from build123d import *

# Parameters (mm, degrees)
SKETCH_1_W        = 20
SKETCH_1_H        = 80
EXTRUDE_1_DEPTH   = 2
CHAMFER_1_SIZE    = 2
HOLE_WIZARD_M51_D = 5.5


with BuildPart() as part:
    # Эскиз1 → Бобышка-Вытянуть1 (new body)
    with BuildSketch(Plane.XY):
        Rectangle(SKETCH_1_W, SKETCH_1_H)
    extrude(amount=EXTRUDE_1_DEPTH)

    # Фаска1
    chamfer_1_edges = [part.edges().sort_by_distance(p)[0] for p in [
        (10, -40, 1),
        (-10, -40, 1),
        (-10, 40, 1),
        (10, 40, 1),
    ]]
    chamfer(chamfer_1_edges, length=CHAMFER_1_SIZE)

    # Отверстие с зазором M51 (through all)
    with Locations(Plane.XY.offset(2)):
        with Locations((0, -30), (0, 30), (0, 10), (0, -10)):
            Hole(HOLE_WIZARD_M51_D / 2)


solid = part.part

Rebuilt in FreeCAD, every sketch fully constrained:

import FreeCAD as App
import Part
import Sketcher
from FreeCAD import Vector
Q = App.Units.Quantity


def edges_at(feature, points):
    """Names of the edges that pass closest to the given points."""
    edges = feature.Shape.Edges
    near = lambda p: min(range(len(edges)), key=lambda i: edges[i].distToShape(Part.Vertex(*p))[0])
    return sorted({f"Edge{near(p) + 1}" for p in points})


def add_polygon(sketch, points):
    """Adds a closed chain of lines whose ends are joined by coincident constraints."""
    first, n = sketch.GeometryCount, len(points)
    for a, b in zip(points, points[1:] + points[:1]):
        sketch.addGeometry(Part.LineSegment(App.Vector(*a, 0), App.Vector(*b, 0)), False)
    for i in range(n):
        sketch.addConstraint(Sketcher.Constraint("Coincident", first + i, 2, first + (i + 1) % n, 1))

doc = App.newDocument("Part")
params = doc.addObject("Spreadsheet::Sheet", "Params")
for row, (alias, value) in enumerate([
    ("sketch1_width", "20 mm"),
    ("sketch1_height", "80 mm"),
    ("pad1_length", "2 mm"),
    ("chamfer_size", "2 mm"),
    ("sketch2_diameter", "5.5 mm"),
    ("hole_diameter", "5.5 mm"),
], start=1):
    params.set(f"A{row}", alias)
    params.set(f"B{row}", "=" + value)
    params.setAlias(f"B{row}", alias)

body = doc.addObject("PartDesign::Body", "Body")

# Sketch on XY plane
sketch1 = body.newObject("Sketcher::SketchObject", "Sketch")
sketch1.AttachmentSupport = (doc.getObject("XY_Plane"), [""])
sketch1.MapMode = "FlatFace"
add_polygon(sketch1, [(-10, 40), (-10, -40), (10, -40), (10, 40)])  # lines 0-3
sketch1.addConstraint([
    Sketcher.Constraint("Vertical", 0),
    Sketcher.Constraint("Horizontal", 1),
    Sketcher.Constraint("Vertical", 2),
    Sketcher.Constraint("Horizontal", 3),
    Sketcher.Constraint("Symmetric", 0, 2, 2, 2, -1, 1),
    Sketcher.Constraint("DistanceX", 1, 1, 1, 2, Q("20 mm")),
    Sketcher.Constraint("DistanceY", 0, 2, 0, 1, Q("80 mm")),
])
sketch1.setExpression("Constraints[9]", "Params.sketch1_width")
sketch1.setExpression("Constraints[10]", "Params.sketch1_height")
pad1 = body.newObject("PartDesign::Pad", "Pad")
pad1.Profile = sketch1
pad1.setExpression("Length", "Params.pad1_length")
doc.recompute()

chamfer = body.newObject("PartDesign::Chamfer", "Chamfer")
chamfer.Base = (pad1, edges_at(pad1, [
    (10, -40, 1),
    (-10, -40, 1),
    (-10, 40, 1),
    (10, 40, 1),
]))
chamfer.setExpression("Size", "Params.chamfer_size")

# Sketch on XY plane
sketch2 = body.newObject("Sketcher::SketchObject", "Sketch001")
sketch2.AttachmentSupport = (doc.getObject("XY_Plane"), [""])
sketch2.MapMode = "FlatFace"
sketch2.AttachmentOffset = App.Placement(Vector(0, 0, 2), App.Rotation())
sketch2.addGeometry([
    Part.Circle(Vector(0, -30, 0), Vector(0, 0, 1), 2.8),
    Part.Circle(Vector(0, 30, 0), Vector(0, 0, 1), 2.8),
    Part.Circle(Vector(0, 10, 0), Vector(0, 0, 1), 2.8),
    Part.Circle(Vector(0, -10, 0), Vector(0, 0, 1), 2.8),
], False)
sketch2.addConstraint([
    Sketcher.Constraint("Equal", 0, 1),
    Sketcher.Constraint("Equal", 1, 2),
    Sketcher.Constraint("Equal", 2, 3),
    Sketcher.Constraint("Symmetric", 0, 3, 1, 3, -1, 1),
    Sketcher.Constraint("Symmetric", 2, 3, 3, 3, -1, 1),
    Sketcher.Constraint("PointOnObject", 0, 3, -2),
    Sketcher.Constraint("PointOnObject", 2, 3, -2),
    Sketcher.Constraint("Diameter", 0, Q("5.5 mm")),
    Sketcher.Constraint("DistanceY", 0, 3, -1, 1, Q("30 mm")),
    Sketcher.Constraint("DistanceY", -1, 1, 2, 3, Q("10 mm")),
])
sketch2.setExpression("Constraints[7]", "Params.sketch2_diameter")
doc.recompute()
hole = body.newObject("PartDesign::Hole", "Hole")
hole.Profile = sketch2
hole.ThreadType = "None"
hole.setExpression("Diameter", "Params.hole_diameter")
hole.DepthType = "ThroughAll"

doc.recompute()
